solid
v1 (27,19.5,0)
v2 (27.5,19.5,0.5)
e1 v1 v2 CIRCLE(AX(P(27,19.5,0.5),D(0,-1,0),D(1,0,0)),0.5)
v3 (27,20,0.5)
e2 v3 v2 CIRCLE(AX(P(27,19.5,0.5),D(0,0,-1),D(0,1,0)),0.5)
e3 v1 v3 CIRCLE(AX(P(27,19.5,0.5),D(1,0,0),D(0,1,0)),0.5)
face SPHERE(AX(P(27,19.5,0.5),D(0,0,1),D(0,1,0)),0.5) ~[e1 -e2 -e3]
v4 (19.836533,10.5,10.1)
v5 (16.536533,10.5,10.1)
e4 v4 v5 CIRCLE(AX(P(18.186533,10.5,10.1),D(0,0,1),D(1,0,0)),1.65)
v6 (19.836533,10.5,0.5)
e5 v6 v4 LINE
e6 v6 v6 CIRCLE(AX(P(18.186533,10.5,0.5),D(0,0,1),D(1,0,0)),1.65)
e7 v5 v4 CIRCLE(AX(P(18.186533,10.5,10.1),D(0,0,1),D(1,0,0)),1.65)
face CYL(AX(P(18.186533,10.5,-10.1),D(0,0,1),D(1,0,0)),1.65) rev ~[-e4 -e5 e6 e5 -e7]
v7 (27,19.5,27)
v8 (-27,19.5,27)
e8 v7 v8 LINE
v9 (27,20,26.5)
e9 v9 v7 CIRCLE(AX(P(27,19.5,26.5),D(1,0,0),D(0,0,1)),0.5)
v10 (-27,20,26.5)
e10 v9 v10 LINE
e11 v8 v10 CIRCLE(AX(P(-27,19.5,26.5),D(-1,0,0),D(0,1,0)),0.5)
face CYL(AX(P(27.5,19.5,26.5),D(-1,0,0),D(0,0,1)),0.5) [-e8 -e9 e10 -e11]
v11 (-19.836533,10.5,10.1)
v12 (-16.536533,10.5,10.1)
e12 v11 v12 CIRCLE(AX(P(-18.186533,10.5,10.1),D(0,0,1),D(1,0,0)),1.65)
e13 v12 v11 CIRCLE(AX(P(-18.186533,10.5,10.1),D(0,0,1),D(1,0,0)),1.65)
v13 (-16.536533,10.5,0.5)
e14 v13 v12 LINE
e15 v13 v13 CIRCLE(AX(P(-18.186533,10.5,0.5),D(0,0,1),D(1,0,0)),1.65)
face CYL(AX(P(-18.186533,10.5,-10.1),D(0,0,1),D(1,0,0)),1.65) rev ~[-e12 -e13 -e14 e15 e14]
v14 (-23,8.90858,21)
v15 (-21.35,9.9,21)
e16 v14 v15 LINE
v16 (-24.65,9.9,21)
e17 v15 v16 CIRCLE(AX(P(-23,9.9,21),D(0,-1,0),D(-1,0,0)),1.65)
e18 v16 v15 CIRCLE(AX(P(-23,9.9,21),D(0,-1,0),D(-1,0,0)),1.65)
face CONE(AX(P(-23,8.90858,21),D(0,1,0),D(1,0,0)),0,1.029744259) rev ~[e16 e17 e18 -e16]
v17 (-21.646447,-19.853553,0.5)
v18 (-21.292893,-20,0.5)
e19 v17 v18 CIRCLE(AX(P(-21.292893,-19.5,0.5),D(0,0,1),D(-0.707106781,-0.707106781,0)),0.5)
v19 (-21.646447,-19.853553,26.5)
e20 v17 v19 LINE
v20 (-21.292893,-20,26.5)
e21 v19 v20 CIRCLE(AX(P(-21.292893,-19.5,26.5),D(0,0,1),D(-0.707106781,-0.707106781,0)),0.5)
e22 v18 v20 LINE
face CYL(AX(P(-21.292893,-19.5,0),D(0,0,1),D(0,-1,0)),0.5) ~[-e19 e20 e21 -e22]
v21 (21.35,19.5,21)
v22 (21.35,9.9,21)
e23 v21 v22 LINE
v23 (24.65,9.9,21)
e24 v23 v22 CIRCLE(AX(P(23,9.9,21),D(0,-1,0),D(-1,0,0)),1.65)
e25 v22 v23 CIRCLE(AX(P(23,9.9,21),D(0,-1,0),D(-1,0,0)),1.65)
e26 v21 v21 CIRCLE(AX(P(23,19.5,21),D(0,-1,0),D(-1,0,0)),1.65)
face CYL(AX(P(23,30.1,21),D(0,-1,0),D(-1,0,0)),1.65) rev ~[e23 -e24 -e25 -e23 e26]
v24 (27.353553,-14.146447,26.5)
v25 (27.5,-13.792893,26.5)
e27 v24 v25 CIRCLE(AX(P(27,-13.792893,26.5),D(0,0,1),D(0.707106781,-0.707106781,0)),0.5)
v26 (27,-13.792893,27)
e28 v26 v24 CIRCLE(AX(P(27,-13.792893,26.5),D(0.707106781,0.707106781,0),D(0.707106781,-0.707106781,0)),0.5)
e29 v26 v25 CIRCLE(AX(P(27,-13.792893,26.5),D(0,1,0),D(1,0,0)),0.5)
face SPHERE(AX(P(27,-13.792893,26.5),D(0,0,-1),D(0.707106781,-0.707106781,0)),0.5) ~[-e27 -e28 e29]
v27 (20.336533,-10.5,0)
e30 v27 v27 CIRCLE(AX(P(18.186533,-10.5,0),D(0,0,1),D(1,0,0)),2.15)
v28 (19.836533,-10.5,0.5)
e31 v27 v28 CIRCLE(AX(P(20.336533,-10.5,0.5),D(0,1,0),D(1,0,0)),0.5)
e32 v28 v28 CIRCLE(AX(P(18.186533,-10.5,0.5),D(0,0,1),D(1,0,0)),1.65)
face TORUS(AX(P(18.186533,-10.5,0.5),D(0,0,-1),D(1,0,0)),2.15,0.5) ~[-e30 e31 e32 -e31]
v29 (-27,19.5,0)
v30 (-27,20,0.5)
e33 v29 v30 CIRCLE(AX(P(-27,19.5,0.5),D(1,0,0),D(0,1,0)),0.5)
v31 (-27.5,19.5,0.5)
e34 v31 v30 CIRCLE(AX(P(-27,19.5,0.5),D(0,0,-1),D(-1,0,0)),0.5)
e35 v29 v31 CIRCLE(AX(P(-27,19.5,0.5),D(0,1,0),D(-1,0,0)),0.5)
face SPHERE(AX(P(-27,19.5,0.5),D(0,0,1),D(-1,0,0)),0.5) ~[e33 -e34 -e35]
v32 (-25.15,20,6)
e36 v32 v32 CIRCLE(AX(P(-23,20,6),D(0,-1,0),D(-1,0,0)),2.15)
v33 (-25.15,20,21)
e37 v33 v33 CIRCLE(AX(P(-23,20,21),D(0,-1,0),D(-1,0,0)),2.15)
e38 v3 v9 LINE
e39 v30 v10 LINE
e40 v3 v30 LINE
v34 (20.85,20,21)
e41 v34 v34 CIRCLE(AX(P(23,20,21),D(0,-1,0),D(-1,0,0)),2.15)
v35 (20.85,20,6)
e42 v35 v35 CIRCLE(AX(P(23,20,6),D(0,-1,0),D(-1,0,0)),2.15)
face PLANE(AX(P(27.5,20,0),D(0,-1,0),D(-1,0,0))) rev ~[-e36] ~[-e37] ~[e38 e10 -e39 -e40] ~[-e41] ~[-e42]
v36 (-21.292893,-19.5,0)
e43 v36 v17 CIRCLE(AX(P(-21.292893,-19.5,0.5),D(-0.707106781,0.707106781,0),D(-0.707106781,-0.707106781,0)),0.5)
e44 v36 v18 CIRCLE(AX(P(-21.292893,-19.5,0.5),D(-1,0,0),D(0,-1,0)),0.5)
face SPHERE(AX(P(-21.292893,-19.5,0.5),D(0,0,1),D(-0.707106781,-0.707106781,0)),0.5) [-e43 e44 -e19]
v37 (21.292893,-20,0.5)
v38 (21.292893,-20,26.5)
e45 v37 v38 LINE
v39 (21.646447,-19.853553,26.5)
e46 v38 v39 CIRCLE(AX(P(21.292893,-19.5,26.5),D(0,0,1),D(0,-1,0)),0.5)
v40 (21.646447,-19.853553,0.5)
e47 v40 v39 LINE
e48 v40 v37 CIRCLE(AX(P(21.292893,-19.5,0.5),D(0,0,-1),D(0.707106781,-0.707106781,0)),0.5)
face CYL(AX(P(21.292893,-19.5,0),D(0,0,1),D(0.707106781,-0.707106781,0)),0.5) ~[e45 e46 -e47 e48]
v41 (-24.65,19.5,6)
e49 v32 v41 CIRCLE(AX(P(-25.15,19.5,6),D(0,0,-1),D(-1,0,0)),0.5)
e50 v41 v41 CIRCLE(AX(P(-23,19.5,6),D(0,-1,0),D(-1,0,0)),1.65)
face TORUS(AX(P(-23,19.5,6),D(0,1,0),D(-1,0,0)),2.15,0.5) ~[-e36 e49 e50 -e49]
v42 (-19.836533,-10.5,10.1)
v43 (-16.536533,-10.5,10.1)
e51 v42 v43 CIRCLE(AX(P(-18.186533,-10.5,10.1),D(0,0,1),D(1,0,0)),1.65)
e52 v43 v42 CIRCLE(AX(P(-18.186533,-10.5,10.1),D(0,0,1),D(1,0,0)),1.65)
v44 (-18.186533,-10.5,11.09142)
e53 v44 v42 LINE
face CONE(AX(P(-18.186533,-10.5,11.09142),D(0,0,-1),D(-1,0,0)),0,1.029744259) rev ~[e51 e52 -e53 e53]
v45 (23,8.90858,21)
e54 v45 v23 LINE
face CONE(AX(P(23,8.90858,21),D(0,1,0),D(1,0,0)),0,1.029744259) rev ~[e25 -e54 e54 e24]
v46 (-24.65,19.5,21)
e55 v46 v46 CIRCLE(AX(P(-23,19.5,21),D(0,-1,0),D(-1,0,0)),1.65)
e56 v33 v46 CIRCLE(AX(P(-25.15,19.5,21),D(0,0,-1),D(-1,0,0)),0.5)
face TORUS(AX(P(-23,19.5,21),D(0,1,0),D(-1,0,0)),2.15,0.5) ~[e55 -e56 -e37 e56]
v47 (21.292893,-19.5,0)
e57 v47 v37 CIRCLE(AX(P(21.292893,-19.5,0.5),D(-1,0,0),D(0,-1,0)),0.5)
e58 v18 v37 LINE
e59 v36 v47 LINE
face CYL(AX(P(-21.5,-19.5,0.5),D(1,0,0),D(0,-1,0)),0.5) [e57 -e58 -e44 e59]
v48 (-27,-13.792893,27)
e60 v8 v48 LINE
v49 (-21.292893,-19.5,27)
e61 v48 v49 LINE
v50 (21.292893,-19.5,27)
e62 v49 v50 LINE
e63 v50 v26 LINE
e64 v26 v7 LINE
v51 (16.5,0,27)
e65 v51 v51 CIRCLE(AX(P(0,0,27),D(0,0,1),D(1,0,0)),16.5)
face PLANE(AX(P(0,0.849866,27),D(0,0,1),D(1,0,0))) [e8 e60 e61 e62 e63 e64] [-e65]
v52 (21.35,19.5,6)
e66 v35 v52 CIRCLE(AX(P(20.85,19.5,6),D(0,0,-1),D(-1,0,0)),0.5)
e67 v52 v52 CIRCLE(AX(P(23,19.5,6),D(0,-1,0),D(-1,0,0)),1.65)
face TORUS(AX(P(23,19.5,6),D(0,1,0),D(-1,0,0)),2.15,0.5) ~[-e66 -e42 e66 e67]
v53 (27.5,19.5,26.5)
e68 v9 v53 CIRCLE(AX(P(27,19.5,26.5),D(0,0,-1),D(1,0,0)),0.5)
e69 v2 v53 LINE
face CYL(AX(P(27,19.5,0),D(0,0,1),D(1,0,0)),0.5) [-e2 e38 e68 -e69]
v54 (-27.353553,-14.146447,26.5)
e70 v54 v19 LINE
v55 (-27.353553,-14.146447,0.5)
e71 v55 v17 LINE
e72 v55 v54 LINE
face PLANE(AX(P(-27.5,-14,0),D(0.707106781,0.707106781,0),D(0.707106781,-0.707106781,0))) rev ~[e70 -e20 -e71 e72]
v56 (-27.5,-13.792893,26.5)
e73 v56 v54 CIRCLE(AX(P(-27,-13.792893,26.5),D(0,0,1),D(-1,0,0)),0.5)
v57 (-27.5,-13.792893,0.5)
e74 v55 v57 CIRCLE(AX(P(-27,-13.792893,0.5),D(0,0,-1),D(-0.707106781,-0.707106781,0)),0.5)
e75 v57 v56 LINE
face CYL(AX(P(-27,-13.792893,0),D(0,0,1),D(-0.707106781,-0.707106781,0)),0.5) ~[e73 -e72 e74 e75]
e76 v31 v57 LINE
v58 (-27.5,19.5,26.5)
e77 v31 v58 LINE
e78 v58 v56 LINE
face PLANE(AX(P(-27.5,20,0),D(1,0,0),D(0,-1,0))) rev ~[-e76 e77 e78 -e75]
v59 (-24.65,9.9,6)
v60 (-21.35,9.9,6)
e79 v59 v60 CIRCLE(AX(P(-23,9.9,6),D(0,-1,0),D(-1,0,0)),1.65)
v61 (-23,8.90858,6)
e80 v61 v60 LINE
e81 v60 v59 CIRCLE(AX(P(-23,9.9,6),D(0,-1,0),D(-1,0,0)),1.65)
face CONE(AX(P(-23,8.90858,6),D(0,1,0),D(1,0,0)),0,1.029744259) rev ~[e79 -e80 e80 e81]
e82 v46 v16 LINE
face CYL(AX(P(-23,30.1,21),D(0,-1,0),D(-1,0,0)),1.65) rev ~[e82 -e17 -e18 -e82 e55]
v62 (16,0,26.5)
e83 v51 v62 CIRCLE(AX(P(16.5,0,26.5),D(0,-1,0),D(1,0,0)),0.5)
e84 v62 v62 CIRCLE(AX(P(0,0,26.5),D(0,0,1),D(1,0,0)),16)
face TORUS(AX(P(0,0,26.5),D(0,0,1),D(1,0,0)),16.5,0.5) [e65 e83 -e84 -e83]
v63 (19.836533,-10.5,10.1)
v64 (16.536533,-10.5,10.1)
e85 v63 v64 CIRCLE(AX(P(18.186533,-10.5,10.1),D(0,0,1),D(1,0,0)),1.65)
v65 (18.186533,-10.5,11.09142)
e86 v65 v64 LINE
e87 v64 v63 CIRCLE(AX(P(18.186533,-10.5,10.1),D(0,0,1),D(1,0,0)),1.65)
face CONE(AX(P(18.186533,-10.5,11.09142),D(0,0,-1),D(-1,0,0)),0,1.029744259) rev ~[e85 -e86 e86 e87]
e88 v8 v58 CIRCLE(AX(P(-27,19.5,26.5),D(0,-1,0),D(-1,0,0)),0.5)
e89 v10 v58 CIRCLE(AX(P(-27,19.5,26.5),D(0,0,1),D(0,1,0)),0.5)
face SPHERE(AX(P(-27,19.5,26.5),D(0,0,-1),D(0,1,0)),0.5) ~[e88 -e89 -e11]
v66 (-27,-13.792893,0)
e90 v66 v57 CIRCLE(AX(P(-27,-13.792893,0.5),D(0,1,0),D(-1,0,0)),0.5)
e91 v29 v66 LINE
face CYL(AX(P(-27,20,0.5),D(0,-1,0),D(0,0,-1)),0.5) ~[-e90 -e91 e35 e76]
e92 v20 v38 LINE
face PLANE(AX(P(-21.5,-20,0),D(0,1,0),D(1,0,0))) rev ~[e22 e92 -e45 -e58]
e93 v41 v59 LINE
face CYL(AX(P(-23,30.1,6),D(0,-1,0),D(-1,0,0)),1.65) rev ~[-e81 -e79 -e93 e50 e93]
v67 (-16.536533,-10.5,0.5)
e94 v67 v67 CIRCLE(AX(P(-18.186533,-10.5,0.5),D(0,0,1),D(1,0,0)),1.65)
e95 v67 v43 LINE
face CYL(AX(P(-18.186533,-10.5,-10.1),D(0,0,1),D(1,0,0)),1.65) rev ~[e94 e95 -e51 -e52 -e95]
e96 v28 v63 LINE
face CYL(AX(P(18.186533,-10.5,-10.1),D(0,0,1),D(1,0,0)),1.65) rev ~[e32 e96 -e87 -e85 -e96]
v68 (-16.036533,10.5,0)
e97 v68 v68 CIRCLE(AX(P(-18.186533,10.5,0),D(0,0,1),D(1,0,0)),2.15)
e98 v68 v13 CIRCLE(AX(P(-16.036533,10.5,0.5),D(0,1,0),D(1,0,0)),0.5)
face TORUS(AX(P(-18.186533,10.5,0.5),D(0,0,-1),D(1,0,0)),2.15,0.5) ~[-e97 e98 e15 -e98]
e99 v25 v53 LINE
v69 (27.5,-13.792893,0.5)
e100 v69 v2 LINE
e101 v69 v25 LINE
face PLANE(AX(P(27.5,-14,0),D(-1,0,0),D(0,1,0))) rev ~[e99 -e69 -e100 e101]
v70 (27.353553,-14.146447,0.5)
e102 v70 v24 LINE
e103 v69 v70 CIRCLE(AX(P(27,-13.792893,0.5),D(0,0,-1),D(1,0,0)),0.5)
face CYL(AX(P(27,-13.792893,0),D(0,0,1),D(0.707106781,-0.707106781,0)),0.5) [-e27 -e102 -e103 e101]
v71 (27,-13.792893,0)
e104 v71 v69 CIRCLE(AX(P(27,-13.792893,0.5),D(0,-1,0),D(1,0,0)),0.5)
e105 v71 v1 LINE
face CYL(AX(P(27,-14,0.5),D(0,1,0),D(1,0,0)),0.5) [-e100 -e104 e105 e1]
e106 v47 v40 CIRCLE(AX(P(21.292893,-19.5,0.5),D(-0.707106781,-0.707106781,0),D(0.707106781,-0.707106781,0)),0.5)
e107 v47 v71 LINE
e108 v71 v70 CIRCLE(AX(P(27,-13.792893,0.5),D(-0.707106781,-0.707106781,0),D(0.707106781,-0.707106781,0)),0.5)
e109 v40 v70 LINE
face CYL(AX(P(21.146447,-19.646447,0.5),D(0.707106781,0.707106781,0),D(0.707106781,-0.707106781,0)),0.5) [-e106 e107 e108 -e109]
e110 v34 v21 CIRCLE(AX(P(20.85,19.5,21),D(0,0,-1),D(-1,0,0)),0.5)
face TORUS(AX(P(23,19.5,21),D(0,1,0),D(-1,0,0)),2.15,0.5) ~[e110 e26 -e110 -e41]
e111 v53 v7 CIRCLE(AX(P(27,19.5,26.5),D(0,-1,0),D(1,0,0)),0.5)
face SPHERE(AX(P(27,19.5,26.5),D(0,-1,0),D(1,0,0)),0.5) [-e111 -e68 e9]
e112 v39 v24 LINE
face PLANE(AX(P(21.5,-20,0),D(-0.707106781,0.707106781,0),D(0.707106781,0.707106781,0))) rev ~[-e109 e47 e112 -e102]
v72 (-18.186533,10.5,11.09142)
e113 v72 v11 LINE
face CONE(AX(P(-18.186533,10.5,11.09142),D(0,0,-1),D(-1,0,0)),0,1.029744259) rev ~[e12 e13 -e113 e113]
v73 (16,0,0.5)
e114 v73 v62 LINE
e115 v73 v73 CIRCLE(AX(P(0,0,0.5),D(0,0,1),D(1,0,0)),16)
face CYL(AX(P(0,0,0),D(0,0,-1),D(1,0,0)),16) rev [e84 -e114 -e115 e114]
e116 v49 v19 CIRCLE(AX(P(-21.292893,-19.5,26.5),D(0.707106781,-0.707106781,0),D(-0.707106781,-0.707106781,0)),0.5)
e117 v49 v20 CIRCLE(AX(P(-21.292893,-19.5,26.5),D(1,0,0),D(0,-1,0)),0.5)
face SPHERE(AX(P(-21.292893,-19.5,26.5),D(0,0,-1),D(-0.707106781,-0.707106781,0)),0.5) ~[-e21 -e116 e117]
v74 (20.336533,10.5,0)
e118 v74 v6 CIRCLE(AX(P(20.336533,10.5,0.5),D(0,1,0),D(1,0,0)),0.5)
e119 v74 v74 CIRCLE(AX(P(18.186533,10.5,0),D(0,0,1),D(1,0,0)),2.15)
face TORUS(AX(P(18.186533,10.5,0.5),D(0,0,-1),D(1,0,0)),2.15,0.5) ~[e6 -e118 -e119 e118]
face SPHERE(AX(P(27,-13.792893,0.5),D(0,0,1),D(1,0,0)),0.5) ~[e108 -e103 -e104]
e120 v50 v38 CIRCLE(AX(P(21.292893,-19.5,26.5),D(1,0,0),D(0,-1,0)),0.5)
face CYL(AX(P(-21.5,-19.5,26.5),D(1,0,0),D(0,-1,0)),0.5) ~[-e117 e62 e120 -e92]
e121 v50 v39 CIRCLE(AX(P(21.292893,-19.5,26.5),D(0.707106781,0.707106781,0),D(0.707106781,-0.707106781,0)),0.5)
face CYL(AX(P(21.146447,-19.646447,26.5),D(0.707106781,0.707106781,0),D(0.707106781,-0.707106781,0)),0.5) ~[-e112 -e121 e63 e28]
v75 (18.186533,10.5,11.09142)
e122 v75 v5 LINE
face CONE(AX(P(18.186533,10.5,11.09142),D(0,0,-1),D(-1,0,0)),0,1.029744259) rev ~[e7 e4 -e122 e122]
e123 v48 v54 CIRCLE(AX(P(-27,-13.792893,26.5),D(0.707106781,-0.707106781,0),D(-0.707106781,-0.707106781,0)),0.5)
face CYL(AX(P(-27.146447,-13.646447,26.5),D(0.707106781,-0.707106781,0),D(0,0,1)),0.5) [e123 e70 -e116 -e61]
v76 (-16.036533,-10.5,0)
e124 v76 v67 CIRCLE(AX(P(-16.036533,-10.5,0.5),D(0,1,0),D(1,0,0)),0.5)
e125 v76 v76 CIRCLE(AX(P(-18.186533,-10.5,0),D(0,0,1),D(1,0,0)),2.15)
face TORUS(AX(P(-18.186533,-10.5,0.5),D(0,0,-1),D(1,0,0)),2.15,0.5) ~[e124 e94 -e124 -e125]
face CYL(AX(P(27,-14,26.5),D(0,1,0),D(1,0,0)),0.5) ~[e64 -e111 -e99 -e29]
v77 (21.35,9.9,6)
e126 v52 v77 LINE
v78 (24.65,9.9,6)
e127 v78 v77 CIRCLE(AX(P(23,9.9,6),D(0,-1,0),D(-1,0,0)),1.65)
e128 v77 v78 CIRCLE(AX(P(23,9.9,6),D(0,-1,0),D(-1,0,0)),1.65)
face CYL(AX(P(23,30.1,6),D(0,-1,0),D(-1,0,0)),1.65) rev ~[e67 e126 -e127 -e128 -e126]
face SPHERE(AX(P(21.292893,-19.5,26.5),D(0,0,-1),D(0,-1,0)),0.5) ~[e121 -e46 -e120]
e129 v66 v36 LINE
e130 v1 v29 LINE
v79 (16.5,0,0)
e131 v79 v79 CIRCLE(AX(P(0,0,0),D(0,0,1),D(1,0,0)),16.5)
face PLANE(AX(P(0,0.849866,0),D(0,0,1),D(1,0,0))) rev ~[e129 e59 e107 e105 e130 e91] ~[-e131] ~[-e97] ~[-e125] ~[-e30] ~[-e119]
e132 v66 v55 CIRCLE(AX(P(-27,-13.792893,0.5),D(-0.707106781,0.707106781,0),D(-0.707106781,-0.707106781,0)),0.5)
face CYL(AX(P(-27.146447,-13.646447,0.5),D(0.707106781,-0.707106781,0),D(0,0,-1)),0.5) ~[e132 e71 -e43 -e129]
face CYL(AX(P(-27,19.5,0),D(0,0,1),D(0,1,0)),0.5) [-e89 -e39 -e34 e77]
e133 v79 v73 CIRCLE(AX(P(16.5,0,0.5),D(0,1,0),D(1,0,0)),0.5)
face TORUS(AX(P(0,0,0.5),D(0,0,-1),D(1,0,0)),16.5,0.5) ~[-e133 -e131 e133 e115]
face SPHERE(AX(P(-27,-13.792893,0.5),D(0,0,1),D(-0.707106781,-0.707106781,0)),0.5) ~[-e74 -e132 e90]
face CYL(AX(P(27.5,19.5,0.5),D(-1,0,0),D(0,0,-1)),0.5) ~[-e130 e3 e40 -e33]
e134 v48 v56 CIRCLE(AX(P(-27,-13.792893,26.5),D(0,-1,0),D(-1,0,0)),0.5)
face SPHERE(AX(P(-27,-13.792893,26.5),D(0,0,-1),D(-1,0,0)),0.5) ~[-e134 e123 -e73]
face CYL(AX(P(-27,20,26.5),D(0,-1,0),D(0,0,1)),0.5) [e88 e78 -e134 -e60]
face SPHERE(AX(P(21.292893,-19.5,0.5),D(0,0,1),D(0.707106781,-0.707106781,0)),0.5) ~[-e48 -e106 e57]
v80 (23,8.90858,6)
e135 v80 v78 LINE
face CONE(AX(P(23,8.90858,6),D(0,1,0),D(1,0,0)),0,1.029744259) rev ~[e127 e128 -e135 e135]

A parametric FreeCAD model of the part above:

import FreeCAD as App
import Part
import Sketcher

V = App.Vector
Q = App.Units.Quantity


def edges_at(feature, points):
    """Names of the edges that pass closest to the given points."""
    edges = feature.Shape.Edges
    near = lambda p: min(range(len(edges)), key=lambda i: edges[i].distToShape(Part.Vertex(*p))[0])
    return sorted({f"Edge{near(p) + 1}" for p in points})


def add_polygon(sketch, points):
    """Adds a closed chain of lines whose ends are joined by coincident constraints."""
    first, n = sketch.GeometryCount, len(points)
    for a, b in zip(points, points[1:] + points[:1]):
        sketch.addGeometry(Part.LineSegment(App.Vector(*a, 0), App.Vector(*b, 0)), False)
    for i in range(n):
        sketch.addConstraint(Sketcher.Constraint("Coincident", first + i, 2, first + (i + 1) % n, 1))

doc = App.newDocument("Part")
params = doc.addObject("Spreadsheet::Sheet", "Params")
for row, (alias, value) in enumerate([
    ("sketch1_diameter", "32 mm"),
    ("sketch1_width", "55 mm"),
    ("sketch1_width2", "43 mm"),
    ("sketch1_height", "34 mm"),
    ("pad1_length", "27 mm"),
    ("sketch2_diameter", "3.3 mm"),
    ("hole_diameter", "3.3 mm"),
    ("hole_depth", "10.1 mm"),
    ("sketch3_diameter", "3.3 mm"),
    ("hole2_diameter", "3.3 mm"),
    ("hole2_depth", "10.1 mm"),
    ("fillet_radius", "0.5 mm"),
], start=1):
    params.set(f"A{row}", alias)
    params.set(f"B{row}", "=" + value)
    params.setAlias(f"B{row}", alias)

body = doc.addObject("PartDesign::Body", "Body")

# Sketch on XY plane
sketch1 = body.newObject("Sketcher::SketchObject", "Sketch")
sketch1.AttachmentSupport = (doc.getObject("XY_Plane"), [""])
sketch1.MapMode = "FlatFace"
add_polygon(sketch1, [(22, -20), (28, -14), (28, 20), (-28, 20), (-28, -14), (-22, -20)])  # lines 0-5
sketch1.addGeometry(Part.Circle(V(0, 0, 0), V(0, 0, 1), 16), False)  # 6
sketch1.addConstraint([
    Sketcher.Constraint("Vertical", 1),
    Sketcher.Constraint("Horizontal", 2),
    Sketcher.Constraint("Vertical", 3),
    Sketcher.Constraint("Horizontal", 5),
    Sketcher.Constraint("Coincident", 6, 3, -1, 1),
    Sketcher.Constraint("Symmetric", 0, 2, 3, 2, -2),
    Sketcher.Constraint("Perpendicular", 0, 4),
    Sketcher.Constraint("Equal", 0, 4),
    Sketcher.Constraint("Diameter", 6, Q("32 mm")),
    Sketcher.Constraint("DistanceX", 2, 2, 2, 1, Q("55 mm")),
    Sketcher.Constraint("DistanceX", 5, 1, 5, 2, Q("43 mm")),
    Sketcher.Constraint("DistanceY", 1, 1, 1, 2, Q("34 mm")),
    Sketcher.Constraint("DistanceY", 0, 2, -1, 1, Q("14 mm")),
])
sketch1.setExpression("Constraints[14]", "Params.sketch1_diameter")
sketch1.setExpression("Constraints[15]", "Params.sketch1_width")
sketch1.setExpression("Constraints[16]", "Params.sketch1_width2")
sketch1.setExpression("Constraints[17]", "Params.sketch1_height")
pad1 = body.newObject("PartDesign::Pad", "Pad")
pad1.Profile = sketch1
pad1.setExpression("Length", "Params.pad1_length")

# Sketch on XY plane
sketch2 = body.newObject("Sketcher::SketchObject", "Sketch001")
sketch2.AttachmentSupport = (doc.getObject("XY_Plane"), [""])
sketch2.MapMode = "FlatFace"
sketch2.addGeometry([
    Part.Circle(V(-18.2, 10.5, 0), V(0, 0, 1), 1.6),
    Part.Circle(V(-18.2, -10.5, 0), V(0, 0, 1), 1.6),
    Part.Circle(V(18.2, -10.5, 0), V(0, 0, 1), 1.6),
    Part.Circle(V(18.2, 10.5, 0), V(0, 0, 1), 1.6),
], False)
sketch2.addConstraint([
    Sketcher.Constraint("Equal", 0, 1),
    Sketcher.Constraint("Equal", 1, 2),
    Sketcher.Constraint("Equal", 2, 3),
    Sketcher.Constraint("Symmetric", 0, 3, 2, 3, -1, 1),
    Sketcher.Constraint("Symmetric", 1, 3, 3, 3, -1, 1),
    Sketcher.Constraint("Symmetric", 1, 3, 2, 3, -2),
    Sketcher.Constraint("Diameter", 0, Q("3.3 mm")),
    Sketcher.Constraint("DistanceY", 1, 3, 0, 3, Q("21 mm")),
    Sketcher.Constraint("DistanceX", 0, 3, -1, 1, Q("18.186533 mm")),
])
sketch2.setExpression("Constraints[6]", "Params.sketch2_diameter")
doc.recompute()
hole = body.newObject("PartDesign::Hole", "Hole")
hole.Profile = sketch2
hole.ThreadType = "None"
hole.setExpression("Diameter", "Params.hole_diameter")
hole.DepthType = "Dimension"
hole.setExpression("Depth", "Params.hole_depth")
hole.DrillPoint = "Angled"
hole.DrillPointAngle = 118
hole.Reversed = True

# Sketch on XZ plane
sketch3 = body.newObject("Sketcher::SketchObject", "Sketch002")
sketch3.AttachmentSupport = (doc.getObject("XZ_Plane"), [""])
sketch3.MapMode = "FlatFace"
sketch3.AttachmentOffset = App.Placement(V(0, 0, -20), App.Rotation())
sketch3.addGeometry([
    Part.Circle(V(23, 21, 0), V(0, 0, 1), 1.6),
    Part.Circle(V(23, 6, 0), V(0, 0, 1), 1.6),
    Part.Circle(V(-23, 6, 0), V(0, 0, 1), 1.6),
    Part.Circle(V(-23, 21, 0), V(0, 0, 1), 1.6),
], False)
sketch3.addConstraint([
    Sketcher.Constraint("Equal", 0, 1),
    Sketcher.Constraint("Equal", 1, 2),
    Sketcher.Constraint("Equal", 2, 3),
    Sketcher.Constraint("Symmetric", 1, 3, 2, 3, -2),
    Sketcher.Constraint("Symmetric", 0, 3, 3, 3, -2),
    Sketcher.Constraint("Vertical", 0, 3, 1, 3),
    Sketcher.Constraint("Diameter", 0, Q("3.3 mm")),
    Sketcher.Constraint("DistanceX", -1, 1, 0, 3, Q("23 mm")),
    Sketcher.Constraint("DistanceY", -1, 1, 0, 3, Q("21 mm")),
    Sketcher.Constraint("DistanceY", -1, 1, 1, 3, Q("6 mm")),
])
sketch3.setExpression("Constraints[6]", "Params.sketch3_diameter")
doc.recompute()
hole2 = body.newObject("PartDesign::Hole", "Hole001")
hole2.Profile = sketch3
hole2.ThreadType = "None"
hole2.setExpression("Diameter", "Params.hole2_diameter")
hole2.DepthType = "Dimension"
hole2.setExpression("Depth", "Params.hole2_depth")
hole2.DrillPoint = "Angled"
hole2.DrillPointAngle = 118
hole2.Reversed = True
doc.recompute()

fillet = body.newObject("PartDesign::Fillet", "Fillet")
fillet.Base = (hole2, edges_at(hole2, [
    (27.5, 3, 27),
    (-21.5, -20, 13.5),
    (-27.5, -14, 13.5),
    (-27.5, 20, 13.5),
    (27.5, 20, 13.5),
    (27.5, -14, 13.5),
    (21.5, -20, 13.5),
    (0, 20, 27),
    (-27.5, 3, 27),
    (-16, 0, 0),
    (-16, 0, 27),
    (-24.5, -17, 27),
    (16.537, 10.5, 0),
    (16.537, -10.5, 0),
    (-19.837, -10.5, 0),
    (-19.837, 10.5, 0),
    (0, -20, 27),
    (-21.35, 20, 21),
    (-21.35, 20, 6),
    (24.65, 20, 6),
    (24.65, 20, 21),
    (-24.5, -17, 0),
    (-27.5, 3, 0),
    (0, 20, 0),
    (24.5, -17, 27),
    (27.5, 3, 0),
    (24.5, -17, 0),
    (0, -20, 0),
]))
fillet.setExpression("Radius", "Params.fillet_radius")

doc.recompute()
